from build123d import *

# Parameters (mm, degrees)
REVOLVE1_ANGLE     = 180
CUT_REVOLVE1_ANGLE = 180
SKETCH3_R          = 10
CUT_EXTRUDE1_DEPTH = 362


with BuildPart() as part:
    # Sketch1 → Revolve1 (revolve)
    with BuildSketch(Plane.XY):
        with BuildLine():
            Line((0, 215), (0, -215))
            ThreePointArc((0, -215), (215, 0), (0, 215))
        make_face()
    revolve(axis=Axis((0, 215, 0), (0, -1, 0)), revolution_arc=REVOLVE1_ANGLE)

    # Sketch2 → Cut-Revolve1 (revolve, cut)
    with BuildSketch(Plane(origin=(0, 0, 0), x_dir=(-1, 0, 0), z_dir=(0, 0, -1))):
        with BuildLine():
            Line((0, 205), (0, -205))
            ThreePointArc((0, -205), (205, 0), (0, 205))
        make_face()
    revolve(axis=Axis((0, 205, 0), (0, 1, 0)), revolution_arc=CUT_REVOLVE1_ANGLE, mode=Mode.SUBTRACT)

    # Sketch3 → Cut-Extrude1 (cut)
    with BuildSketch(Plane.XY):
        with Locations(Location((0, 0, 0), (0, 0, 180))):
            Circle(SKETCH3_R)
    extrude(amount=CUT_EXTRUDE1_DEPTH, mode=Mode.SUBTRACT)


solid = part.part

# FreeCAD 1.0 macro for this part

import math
import FreeCAD as App
import Part
import Sketcher

doc = App.newDocument("Part")
body = doc.addObject("PartDesign::Body", "Body")

# Sketch on XY plane
sketch1 = body.newObject("Sketcher::SketchObject", "Sketch")
sketch1.AttachmentSupport = (doc.getObject("XY_Plane"), [""])
sketch1.MapMode = "FlatFace"
sketch1.addGeometry(Part.LineSegment(App.Vector(0, 215, 0), App.Vector(0, -215, 0)), False)
sketch1.addGeometry(Part.ArcOfCircle(Part.Circle(App.Vector(0, 0, 0), App.Vector(0, 0, 1), 215), math.radians(-90), math.radians(90)), False)
sketch1.addConstraint(Sketcher.Constraint("Coincident", 0, 1, 1, 2))
sketch1.addConstraint(Sketcher.Constraint("Coincident", 1, 1, 0, 2))
sketch1.addConstraint(Sketcher.Constraint("Vertical", 0))
sketch1.addConstraint(Sketcher.Constraint("Coincident", 1, 3, -1, 1))
sketch1.addConstraint(Sketcher.Constraint("PointOnObject", 0, 1, -2))
sketch1.addConstraint(Sketcher.Constraint("Radius", 1, 215.0))
revolution = body.newObject("PartDesign::Revolution", "Revolution")
revolution.Profile = sketch1
revolution.ReferenceAxis = (sketch1, ["V_Axis"])
revolution.Angle = 180
revolution.Reversed = True

# Sketch on XY plane
sketch2 = body.newObject("Sketcher::SketchObject", "Sketch001")
sketch2.AttachmentSupport = (doc.getObject("XY_Plane"), [""])
sketch2.MapMode = "FlatFace"
sketch2.addGeometry(Part.LineSegment(App.Vector(0, 205, 0), App.Vector(0, -205, 0)), False)
sketch2.addGeometry(Part.ArcOfCircle(Part.Circle(App.Vector(0, 0, 0), App.Vector(0, 0, 1), 205), math.radians(90), math.radians(270)), False)
sketch2.addConstraint(Sketcher.Constraint("Coincident", 0, 1, 1, 1))
sketch2.addConstraint(Sketcher.Constraint("Coincident", 1, 2, 0, 2))
sketch2.addConstraint(Sketcher.Constraint("Vertical", 0))
sketch2.addConstraint(Sketcher.Constraint("Coincident", 1, 3, -1, 1))
sketch2.addConstraint(Sketcher.Constraint("PointOnObject", 0, 1, -2))
sketch2.addConstraint(Sketcher.Constraint("Radius", 1, 205.0))
groove = body.newObject("PartDesign::Groove", "Groove")
groove.Profile = sketch2
groove.ReferenceAxis = (sketch2, ["V_Axis"])
groove.Angle = 180

# Sketch on XY plane
sketch3 = body.newObject("Sketcher::SketchObject", "Sketch002")
sketch3.AttachmentSupport = (doc.getObject("XY_Plane"), [""])
sketch3.MapMode = "FlatFace"
sketch3.addGeometry(Part.Circle(App.Vector(0, 0, 0), App.Vector(0, 0, 1), 10), False)
sketch3.addConstraint(Sketcher.Constraint("Coincident", 0, 3, -1, 1))
sketch3.addConstraint(Sketcher.Constraint("Diameter", 0, 20.0))
pocket1 = body.newObject("PartDesign::Pocket", "Pocket")
pocket1.Profile = sketch3
pocket1.Length = 362
pocket1.Reversed = True

doc.recompute()
